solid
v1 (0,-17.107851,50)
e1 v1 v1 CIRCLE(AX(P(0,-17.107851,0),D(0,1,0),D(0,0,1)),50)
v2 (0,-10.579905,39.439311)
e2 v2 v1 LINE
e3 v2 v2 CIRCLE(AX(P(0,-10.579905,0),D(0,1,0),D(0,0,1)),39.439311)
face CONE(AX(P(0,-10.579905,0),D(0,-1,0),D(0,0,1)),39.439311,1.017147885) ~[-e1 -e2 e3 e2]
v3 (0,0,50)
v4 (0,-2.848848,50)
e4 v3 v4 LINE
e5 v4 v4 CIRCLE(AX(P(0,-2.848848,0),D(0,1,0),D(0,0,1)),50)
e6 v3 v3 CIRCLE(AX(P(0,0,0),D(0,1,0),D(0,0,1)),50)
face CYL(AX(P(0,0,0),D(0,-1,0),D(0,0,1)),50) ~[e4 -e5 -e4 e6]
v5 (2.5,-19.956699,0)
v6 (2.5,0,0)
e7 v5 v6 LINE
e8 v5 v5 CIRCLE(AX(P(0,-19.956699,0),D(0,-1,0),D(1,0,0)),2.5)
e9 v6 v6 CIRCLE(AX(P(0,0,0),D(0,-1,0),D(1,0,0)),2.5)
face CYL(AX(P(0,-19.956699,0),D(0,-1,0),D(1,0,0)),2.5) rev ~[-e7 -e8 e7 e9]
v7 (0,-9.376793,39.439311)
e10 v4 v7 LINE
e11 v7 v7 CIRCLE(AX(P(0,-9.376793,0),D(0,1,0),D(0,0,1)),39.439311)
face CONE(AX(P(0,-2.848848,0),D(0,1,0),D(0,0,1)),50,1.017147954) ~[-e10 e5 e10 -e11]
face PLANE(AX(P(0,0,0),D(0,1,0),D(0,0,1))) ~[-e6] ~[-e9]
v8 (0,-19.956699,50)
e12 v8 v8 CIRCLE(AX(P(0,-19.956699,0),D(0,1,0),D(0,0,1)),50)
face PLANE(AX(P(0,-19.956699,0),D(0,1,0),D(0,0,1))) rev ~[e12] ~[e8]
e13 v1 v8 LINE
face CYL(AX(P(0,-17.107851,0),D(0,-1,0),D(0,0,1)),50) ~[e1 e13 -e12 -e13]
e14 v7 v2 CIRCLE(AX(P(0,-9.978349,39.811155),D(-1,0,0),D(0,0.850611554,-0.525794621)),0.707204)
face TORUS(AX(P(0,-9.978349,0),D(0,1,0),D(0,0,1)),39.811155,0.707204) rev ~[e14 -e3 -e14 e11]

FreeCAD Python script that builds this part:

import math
import FreeCAD as App
import Part
import Sketcher
Q = App.Units.Quantity

doc = App.newDocument("Part")
params = doc.addObject("Spreadsheet::Sheet", "Params")
for row, (alias, value) in enumerate([
    ("sketch1_height", "50 mm"),
    ("revolution_angle", "360 deg"),
    ("sketch2_diameter", "5 mm"),
], start=1):
    params.set(f"A{row}", alias)
    params.set(f"B{row}", "=" + value)
    params.setAlias(f"B{row}", alias)

body = doc.addObject("PartDesign::Body", "Body")

# Sketch on YZ plane
sketch1 = doc.addObject("Sketcher::SketchObject", "Sketch")
body.addObject(sketch1)
sketch1.AttachmentSupport = (doc.YZ_Plane, [""])
sketch1.MapMode = "FlatFace"
sketch1.addGeometry(Part.LineSegment(App.Vector(-19.956699, 0, 0), App.Vector(0, 0, 0)), False)
sketch1.addGeometry(Part.LineSegment(App.Vector(0, 0, 0), App.Vector(0, 50, 0)), False)
sketch1.addGeometry(Part.LineSegment(App.Vector(0, 50, 0), App.Vector(-2.848848, 50, 0)), False)
sketch1.addGeometry(Part.LineSegment(App.Vector(-2.848848, 50, 0), App.Vector(-9.376793, 39.439311, 0)), False)
sketch1.addGeometry(Part.ArcOfCircle(Part.Circle(App.Vector(-9.978349, 39.811155, 0), App.Vector(0, 0, 1), 0.707204), math.radians(-148.278248), math.radians(-31.721752)), False)
sketch1.addGeometry(Part.LineSegment(App.Vector(-10.579905, 39.439311, 0), App.Vector(-17.107851, 50, 0)), False)
sketch1.addGeometry(Part.LineSegment(App.Vector(-17.107851, 50, 0), App.Vector(-19.956699, 50, 0)), False)
sketch1.addGeometry(Part.LineSegment(App.Vector(-19.956699, 50, 0), App.Vector(-19.956699, 0, 0)), False)
sketch1.addConstraint(Sketcher.Constraint("Coincident", 0, 2, 1, 1))
sketch1.addConstraint(Sketcher.Constraint("Coincident", 1, 2, 2, 1))
sketch1.addConstraint(Sketcher.Constraint("Coincident", 2, 2, 3, 1))
sketch1.addConstraint(Sketcher.Constraint("Tangent", 3, 2, 4, 2))
sketch1.addConstraint(Sketcher.Constraint("Tangent", 4, 1, 5, 1))
sketch1.addConstraint(Sketcher.Constraint("Coincident", 5, 2, 6, 1))
sketch1.addConstraint(Sketcher.Constraint("Coincident", 6, 2, 7, 1))
sketch1.addConstraint(Sketcher.Constraint("Coincident", 7, 2, 0, 1))
sketch1.addConstraint(Sketcher.Constraint("Horizontal", 0))
sketch1.addConstraint(Sketcher.Constraint("Vertical", 1))
sketch1.addConstraint(Sketcher.Constraint("Horizontal", 2))
sketch1.addConstraint(Sketcher.Constraint("Horizontal", 6))
sketch1.addConstraint(Sketcher.Constraint("Vertical", 7))
sketch1.addConstraint(Sketcher.Constraint("Coincident", 0, 2, -1, 1))
sketch1.addConstraint(Sketcher.Constraint("Horizontal", 3, 2, 4, 1))
sketch1.addConstraint(Sketcher.Constraint("Horizontal", 2, 2, 5, 2))
sketch1.addConstraint(Sketcher.Constraint("Equal", 2, 6))
sketch1.addConstraint(Sketcher.Constraint("DistanceY", 1, 1, 1, 2, Q("50 mm")))
sketch1.addConstraint(Sketcher.Constraint("DistanceX", 0, 1, 0, 2, Q("19.956699 mm")))
sketch1.addConstraint(Sketcher.Constraint("Radius", 4, Q("0.707204 mm")))
sketch1.addConstraint(Sketcher.Constraint("DistanceX", 6, 2, 6, 1, Q("2.848848 mm")))
sketch1.addConstraint(Sketcher.Constraint("DistanceY", -1, 1, 3, 2, Q("39.439311 mm")))
sketch1.setExpression("Constraints[17]", "Params.sketch1_height")
revolution = doc.addObject("PartDesign::Revolution", "Revolution")
body.addObject(revolution)
revolution.Profile = sketch1
revolution.ReferenceAxis = (sketch1, ["H_Axis"])
revolution.setExpression("Angle", "Params.revolution_angle")

# Sketch on XZ plane
sketch2 = doc.addObject("Sketcher::SketchObject", "Sketch001")
body.addObject(sketch2)
sketch2.AttachmentSupport = (doc.XZ_Plane, [""])
sketch2.MapMode = "FlatFace"
sketch2.AttachmentOffset = App.Placement(App.Vector(0, 0, 19.956699), App.Rotation())
sketch2.addGeometry(Part.Circle(App.Vector(0, 0, 0), App.Vector(0, 0, 1), 2.5), False)
sketch2.addConstraint(Sketcher.Constraint("Coincident", 0, 3, -1, 1))
sketch2.addConstraint(Sketcher.Constraint("Diameter", 0, Q("5 mm")))
sketch2.setExpression("Constraints[1]", "Params.sketch2_diameter")
pocket1 = doc.addObject("PartDesign::Pocket", "Pocket")
body.addObject(pocket1)
pocket1.Profile = sketch2
pocket1.Type = "ThroughAll"

doc.recompute()
